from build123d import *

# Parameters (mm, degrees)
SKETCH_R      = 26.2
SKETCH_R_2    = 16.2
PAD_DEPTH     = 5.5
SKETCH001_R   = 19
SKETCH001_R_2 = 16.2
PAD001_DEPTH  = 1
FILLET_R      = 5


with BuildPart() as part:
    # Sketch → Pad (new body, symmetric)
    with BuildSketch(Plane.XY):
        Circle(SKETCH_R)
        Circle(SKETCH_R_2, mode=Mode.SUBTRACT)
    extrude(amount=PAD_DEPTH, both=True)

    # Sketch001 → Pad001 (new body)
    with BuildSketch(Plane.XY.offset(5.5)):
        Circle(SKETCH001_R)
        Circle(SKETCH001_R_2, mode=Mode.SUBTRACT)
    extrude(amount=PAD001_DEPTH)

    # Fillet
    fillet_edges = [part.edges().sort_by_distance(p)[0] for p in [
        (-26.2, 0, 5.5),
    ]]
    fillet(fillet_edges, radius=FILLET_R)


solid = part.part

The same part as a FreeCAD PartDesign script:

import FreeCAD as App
import Part
import Sketcher
from FreeCAD import Vector
Q = App.Units.Quantity


def edges_at(feature, points):
    """Names of the edges that pass closest to the given points."""
    edges = feature.Shape.Edges
    near = lambda p: min(range(len(edges)), key=lambda i: edges[i].distToShape(Part.Vertex(*p))[0])
    return sorted({f"Edge{near(p) + 1}" for p in points})

doc = App.newDocument("Part")
body = doc.addObject("PartDesign::Body", "Body")

# Sketch on XY plane
sketch1 = body.newObject("Sketcher::SketchObject", "Sketch")
sketch1.AttachmentSupport = (doc.getObject("XY_Plane"), [""])
sketch1.MapMode = "FlatFace"
sketch1.addGeometry([
    Part.Circle(Vector(0, 0, 0), Vector(0, 0, 1), 26),
    Part.Circle(Vector(0, 0, 0), Vector(0, 0, 1), 16),
], False)
sketch1.addConstraint([
    Sketcher.Constraint("Coincident", 0, 3, -1, 1),
    Sketcher.Constraint("Coincident", 1, 3, -1, 1),
    Sketcher.Constraint("Diameter", 0, Q("52.4 mm")),
    Sketcher.Constraint("Diameter", 1, Q("32.4 mm")),
])
pad1 = body.newObject("PartDesign::Pad", "Pad")
pad1.Profile = sketch1
pad1.Length = 11
pad1.Midplane = True

# Sketch on XY plane
sketch2 = body.newObject("Sketcher::SketchObject", "Sketch001")
sketch2.AttachmentSupport = (doc.getObject("XY_Plane"), [""])
sketch2.MapMode = "FlatFace"
sketch2.AttachmentOffset = App.Placement(Vector(0, 0, 5.5), App.Rotation())
sketch2.addGeometry([
    Part.Circle(Vector(0, 0, 0), Vector(0, 0, 1), 19),
    Part.Circle(Vector(0, 0, 0), Vector(0, 0, 1), 16),
], False)
sketch2.addConstraint([
    Sketcher.Constraint("Coincident", 0, 3, -1, 1),
    Sketcher.Constraint("Coincident", 1, 3, -1, 1),
    Sketcher.Constraint("Diameter", 0, Q("38 mm")),
    Sketcher.Constraint("Diameter", 1, Q("32.4 mm")),
])
pad2 = body.newObject("PartDesign::Pad", "Pad001")
pad2.Profile = sketch2
pad2.Length = 1
doc.recompute()

fillet = body.newObject("PartDesign::Fillet", "Fillet")
fillet.Base = (pad2, edges_at(pad2, [(-26.2, 0, 5.5)]))
fillet.Radius = 5

doc.recompute()
